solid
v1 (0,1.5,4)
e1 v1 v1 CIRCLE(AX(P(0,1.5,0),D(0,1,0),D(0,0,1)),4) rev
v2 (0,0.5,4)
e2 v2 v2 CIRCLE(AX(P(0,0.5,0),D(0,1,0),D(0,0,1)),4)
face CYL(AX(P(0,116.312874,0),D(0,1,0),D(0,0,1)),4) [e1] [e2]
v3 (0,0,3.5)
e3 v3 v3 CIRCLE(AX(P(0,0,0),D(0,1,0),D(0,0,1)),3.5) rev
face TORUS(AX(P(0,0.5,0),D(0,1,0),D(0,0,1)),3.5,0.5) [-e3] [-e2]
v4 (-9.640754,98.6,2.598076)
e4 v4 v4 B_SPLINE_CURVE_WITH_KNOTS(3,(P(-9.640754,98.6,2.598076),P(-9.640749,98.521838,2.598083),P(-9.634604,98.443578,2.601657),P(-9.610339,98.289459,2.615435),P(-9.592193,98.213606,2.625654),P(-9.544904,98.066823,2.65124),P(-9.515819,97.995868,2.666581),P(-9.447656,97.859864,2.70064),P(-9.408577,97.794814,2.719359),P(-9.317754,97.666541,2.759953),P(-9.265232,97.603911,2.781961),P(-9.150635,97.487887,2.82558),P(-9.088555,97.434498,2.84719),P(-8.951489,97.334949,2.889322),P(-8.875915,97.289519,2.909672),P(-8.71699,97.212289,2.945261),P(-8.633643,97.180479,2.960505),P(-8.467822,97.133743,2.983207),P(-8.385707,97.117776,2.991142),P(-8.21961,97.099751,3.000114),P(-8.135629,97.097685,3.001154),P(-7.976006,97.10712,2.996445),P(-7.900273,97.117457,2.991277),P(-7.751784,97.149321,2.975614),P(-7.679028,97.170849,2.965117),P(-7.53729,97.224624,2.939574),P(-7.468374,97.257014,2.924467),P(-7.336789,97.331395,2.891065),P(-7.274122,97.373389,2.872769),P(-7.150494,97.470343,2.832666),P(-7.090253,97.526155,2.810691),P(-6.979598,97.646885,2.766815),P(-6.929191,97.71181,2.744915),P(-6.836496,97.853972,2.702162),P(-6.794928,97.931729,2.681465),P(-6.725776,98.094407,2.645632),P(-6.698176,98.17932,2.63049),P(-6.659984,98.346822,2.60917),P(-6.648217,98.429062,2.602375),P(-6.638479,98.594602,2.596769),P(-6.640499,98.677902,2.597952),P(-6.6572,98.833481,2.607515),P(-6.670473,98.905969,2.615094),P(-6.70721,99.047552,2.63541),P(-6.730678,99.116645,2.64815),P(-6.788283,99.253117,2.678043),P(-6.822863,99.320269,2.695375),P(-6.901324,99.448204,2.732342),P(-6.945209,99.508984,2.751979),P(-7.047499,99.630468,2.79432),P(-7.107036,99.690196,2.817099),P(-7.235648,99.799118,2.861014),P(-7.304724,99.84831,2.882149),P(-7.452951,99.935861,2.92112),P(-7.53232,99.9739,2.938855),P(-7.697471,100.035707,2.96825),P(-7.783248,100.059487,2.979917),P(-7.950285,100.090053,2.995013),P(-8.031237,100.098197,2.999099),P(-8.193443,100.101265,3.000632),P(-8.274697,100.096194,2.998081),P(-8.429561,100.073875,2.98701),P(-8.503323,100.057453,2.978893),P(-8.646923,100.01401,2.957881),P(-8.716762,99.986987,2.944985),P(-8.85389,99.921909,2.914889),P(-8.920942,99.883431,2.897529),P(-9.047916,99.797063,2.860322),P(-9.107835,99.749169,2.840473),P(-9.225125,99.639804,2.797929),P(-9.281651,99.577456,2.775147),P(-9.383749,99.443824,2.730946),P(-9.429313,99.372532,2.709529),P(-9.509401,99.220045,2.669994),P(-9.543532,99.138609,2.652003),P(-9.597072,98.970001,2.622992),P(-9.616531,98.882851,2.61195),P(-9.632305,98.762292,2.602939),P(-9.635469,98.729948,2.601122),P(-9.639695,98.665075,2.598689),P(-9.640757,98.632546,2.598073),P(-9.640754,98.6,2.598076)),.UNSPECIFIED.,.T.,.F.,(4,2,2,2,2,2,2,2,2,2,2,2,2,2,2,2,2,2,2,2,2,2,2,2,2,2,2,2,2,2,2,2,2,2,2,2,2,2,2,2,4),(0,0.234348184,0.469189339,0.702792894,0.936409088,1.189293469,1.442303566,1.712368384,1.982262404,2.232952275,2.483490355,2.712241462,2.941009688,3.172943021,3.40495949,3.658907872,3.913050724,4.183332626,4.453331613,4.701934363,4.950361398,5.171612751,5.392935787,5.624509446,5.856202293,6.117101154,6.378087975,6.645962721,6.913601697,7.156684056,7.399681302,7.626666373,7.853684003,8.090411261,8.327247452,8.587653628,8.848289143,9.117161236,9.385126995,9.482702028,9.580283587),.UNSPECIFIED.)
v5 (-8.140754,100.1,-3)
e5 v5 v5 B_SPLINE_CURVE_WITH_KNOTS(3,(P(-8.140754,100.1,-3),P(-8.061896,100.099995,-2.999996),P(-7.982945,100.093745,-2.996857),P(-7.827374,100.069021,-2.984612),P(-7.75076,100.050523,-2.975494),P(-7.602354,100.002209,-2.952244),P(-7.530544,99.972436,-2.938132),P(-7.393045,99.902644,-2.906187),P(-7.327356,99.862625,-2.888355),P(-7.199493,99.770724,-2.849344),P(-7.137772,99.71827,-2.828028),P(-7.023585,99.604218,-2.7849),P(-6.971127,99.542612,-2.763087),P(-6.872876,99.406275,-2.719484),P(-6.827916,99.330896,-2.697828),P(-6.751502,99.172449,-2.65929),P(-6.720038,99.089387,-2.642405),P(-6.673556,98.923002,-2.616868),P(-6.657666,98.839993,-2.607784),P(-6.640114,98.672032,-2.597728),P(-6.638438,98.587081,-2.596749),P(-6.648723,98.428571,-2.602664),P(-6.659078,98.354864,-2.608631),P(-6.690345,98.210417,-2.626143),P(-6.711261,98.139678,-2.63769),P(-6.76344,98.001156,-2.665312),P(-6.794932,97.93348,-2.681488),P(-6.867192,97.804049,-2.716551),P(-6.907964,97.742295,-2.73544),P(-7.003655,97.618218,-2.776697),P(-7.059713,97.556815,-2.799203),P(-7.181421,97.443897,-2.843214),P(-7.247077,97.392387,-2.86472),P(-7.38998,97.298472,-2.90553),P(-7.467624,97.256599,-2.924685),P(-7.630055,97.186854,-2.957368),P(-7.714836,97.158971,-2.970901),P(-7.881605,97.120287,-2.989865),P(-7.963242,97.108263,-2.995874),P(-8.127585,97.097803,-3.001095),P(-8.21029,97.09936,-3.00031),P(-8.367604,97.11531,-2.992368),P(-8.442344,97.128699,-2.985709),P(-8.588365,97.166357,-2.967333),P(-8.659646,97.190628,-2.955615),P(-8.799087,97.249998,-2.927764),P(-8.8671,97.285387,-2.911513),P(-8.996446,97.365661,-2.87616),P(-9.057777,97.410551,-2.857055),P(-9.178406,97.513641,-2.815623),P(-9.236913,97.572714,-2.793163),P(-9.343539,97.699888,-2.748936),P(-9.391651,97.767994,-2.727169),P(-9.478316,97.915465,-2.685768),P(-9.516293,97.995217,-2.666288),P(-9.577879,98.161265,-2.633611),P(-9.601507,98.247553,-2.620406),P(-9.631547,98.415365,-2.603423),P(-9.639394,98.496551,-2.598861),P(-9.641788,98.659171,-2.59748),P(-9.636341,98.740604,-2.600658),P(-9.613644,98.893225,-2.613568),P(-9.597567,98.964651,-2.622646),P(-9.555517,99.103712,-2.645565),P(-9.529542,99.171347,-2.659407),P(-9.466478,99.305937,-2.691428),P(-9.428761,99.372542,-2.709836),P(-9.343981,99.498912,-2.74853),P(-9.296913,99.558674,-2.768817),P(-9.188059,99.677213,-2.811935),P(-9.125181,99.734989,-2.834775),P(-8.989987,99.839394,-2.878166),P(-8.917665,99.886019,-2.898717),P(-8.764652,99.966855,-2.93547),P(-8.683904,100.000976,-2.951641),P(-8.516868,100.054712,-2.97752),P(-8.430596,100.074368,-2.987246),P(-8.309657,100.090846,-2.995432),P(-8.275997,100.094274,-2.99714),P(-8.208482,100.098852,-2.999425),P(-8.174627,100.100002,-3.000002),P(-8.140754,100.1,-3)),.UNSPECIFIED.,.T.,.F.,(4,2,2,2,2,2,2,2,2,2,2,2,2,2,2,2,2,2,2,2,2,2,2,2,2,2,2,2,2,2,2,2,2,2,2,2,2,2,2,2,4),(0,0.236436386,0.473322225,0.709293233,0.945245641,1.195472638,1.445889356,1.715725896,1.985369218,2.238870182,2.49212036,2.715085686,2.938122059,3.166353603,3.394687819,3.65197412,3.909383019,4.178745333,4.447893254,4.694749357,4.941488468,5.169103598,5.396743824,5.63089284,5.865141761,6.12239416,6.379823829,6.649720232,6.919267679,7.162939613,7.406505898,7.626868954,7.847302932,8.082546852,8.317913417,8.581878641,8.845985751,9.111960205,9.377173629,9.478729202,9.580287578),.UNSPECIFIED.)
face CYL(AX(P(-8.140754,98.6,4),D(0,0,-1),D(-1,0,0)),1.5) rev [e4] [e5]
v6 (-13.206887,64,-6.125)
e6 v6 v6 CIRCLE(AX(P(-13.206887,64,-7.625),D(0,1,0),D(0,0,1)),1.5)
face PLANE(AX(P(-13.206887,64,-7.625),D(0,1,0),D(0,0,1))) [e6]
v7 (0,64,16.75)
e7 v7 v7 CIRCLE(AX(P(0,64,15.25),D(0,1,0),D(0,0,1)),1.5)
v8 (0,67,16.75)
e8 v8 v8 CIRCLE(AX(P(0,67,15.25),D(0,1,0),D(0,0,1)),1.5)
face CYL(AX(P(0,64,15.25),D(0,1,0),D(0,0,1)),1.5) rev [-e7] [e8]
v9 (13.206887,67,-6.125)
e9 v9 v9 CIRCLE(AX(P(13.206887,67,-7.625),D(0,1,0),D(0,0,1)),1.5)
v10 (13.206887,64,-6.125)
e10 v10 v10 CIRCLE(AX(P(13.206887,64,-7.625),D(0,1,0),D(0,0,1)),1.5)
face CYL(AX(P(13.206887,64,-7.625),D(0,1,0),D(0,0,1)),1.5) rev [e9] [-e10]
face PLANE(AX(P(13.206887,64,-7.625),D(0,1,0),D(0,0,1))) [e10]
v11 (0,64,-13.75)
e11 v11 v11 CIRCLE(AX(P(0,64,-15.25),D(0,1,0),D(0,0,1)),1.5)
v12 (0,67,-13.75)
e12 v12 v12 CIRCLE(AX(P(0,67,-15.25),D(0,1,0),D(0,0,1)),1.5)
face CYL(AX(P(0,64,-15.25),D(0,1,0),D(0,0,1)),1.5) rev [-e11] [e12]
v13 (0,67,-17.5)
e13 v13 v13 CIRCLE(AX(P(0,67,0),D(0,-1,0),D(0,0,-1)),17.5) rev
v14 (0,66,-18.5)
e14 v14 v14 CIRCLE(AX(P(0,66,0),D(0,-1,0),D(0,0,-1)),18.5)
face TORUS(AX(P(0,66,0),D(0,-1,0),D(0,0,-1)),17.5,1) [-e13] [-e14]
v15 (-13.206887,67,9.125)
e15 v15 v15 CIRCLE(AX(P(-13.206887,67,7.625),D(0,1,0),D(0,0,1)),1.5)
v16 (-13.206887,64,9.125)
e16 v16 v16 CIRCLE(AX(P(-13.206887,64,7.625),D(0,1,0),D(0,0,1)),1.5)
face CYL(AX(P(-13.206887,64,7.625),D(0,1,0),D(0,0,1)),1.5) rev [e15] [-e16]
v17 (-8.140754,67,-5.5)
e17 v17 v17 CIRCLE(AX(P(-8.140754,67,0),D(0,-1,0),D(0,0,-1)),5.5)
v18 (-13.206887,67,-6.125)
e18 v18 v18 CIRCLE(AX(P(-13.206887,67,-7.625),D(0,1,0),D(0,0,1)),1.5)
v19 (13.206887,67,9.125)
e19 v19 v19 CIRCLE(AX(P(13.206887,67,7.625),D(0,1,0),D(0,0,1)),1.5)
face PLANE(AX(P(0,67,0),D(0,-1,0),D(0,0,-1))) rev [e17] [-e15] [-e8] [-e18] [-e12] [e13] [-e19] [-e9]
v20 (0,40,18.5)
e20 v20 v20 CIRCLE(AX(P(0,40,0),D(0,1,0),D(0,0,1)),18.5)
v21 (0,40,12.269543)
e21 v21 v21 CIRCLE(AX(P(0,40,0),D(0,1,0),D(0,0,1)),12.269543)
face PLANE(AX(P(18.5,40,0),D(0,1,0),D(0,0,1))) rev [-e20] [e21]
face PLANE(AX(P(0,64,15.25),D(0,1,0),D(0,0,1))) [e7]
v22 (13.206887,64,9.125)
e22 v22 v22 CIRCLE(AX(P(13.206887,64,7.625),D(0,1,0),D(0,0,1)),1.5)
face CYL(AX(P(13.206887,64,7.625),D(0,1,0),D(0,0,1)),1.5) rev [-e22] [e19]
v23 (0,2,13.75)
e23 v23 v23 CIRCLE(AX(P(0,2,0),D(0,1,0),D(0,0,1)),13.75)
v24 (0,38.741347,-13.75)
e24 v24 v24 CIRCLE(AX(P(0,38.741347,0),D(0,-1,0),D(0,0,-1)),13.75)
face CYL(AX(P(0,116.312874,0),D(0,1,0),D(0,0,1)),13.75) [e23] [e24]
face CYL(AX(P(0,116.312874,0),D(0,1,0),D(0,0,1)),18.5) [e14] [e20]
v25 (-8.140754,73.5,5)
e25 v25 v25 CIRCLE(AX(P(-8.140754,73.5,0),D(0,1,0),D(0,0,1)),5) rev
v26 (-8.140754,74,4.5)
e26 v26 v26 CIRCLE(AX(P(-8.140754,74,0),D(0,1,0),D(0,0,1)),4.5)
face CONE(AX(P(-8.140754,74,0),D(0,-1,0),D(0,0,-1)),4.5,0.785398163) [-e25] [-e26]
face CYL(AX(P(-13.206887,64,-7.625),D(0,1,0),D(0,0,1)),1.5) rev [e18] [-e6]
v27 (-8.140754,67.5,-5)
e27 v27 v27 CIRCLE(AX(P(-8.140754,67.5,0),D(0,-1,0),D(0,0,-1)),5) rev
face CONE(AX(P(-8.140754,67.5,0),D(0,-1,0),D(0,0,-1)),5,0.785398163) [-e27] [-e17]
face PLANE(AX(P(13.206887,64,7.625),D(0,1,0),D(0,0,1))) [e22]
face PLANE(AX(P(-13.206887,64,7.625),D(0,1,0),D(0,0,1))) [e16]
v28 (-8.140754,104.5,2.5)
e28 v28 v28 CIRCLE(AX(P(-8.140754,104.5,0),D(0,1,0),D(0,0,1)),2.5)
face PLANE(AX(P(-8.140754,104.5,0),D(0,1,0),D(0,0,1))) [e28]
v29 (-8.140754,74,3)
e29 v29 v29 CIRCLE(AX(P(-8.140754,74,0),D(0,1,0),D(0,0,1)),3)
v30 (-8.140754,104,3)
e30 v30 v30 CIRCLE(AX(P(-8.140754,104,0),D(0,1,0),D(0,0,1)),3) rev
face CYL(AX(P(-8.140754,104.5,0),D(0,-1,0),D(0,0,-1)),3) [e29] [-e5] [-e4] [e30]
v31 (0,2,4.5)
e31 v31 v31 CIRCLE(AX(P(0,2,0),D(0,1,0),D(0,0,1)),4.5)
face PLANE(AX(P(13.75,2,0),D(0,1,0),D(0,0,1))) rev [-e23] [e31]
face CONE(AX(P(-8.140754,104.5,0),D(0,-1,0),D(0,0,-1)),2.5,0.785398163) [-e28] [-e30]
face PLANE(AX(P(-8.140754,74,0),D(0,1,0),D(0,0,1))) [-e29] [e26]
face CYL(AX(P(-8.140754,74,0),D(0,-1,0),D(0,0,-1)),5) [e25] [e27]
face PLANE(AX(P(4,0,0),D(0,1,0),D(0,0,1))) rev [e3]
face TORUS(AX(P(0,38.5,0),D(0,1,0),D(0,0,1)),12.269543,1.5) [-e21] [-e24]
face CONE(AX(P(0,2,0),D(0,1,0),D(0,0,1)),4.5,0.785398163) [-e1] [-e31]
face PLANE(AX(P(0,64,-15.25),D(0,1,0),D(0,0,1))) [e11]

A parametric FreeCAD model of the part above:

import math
import FreeCAD as App
import Part
import Sketcher
Q = App.Units.Quantity


def edges_at(feature, points):
    """Names of the edges that pass closest to the given points."""
    edges = feature.Shape.Edges
    near = lambda p: min(range(len(edges)), key=lambda i: edges[i].distToShape(Part.Vertex(*p))[0])
    return sorted({f"Edge{near(p) + 1}" for p in points})

doc = App.newDocument("Part")
body = doc.addObject("PartDesign::Body", "Body")

sketch1 = doc.addObject("Sketcher::SketchObject", "Sketch")
body.addObject(sketch1)
sketch1.AttachmentSupport = (doc.XY_Plane, [""])
sketch1.MapMode = "FlatFace"
sketch1.addGeometry([
    Part.LineSegment(App.Vector(18.5, 67, 0), App.Vector(0, 67, 0)),
    Part.LineSegment(App.Vector(0, 67, 0), App.Vector(0, 0, 0)),
    Part.LineSegment(App.Vector(0, 0, 0), App.Vector(4, 0, 0)),
    Part.LineSegment(App.Vector(4, 0, 0), App.Vector(4, 2, 0)),
    Part.LineSegment(App.Vector(4, 2, 0), App.Vector(13.75, 2, 0)),
    Part.LineSegment(App.Vector(13.75, 2, 0), App.Vector(13.75, 40, 0)),
    Part.LineSegment(App.Vector(13.75, 40, 0), App.Vector(18.5, 40, 0)),
    Part.LineSegment(App.Vector(18.5, 40, 0), App.Vector(18.5, 67, 0)),
], False)
sketch1.addConstraint([
    Sketcher.Constraint("Coincident", 0, 2, 1, 1),
    Sketcher.Constraint("Coincident", 1, 2, 2, 1),
    Sketcher.Constraint("Coincident", 2, 2, 3, 1),
    Sketcher.Constraint("Coincident", 3, 2, 4, 1),
    Sketcher.Constraint("Coincident", 4, 2, 5, 1),
    Sketcher.Constraint("Coincident", 5, 2, 6, 1),
    Sketcher.Constraint("Coincident", 6, 2, 7, 1),
    Sketcher.Constraint("Coincident", 7, 2, 0, 1),
    Sketcher.Constraint("Horizontal", 0),
    Sketcher.Constraint("Vertical", 1),
    Sketcher.Constraint("Horizontal", 2),
    Sketcher.Constraint("Vertical", 3),
    Sketcher.Constraint("Horizontal", 4),
    Sketcher.Constraint("Vertical", 5),
    Sketcher.Constraint("Horizontal", 6),
    Sketcher.Constraint("Vertical", 7),
    Sketcher.Constraint("Coincident", 1, 2, -1, 1),
    Sketcher.Constraint("DistanceX", 2, 1, 2, 2, Q("4 mm")),
    Sketcher.Constraint("DistanceY", 1, 2, 1, 1, Q("67 mm")),
    Sketcher.Constraint("DistanceY", 3, 1, 3, 2, Q("2 mm")),
    Sketcher.Constraint("DistanceY", 5, 1, 5, 2, Q("38 mm")),
    Sketcher.Constraint("DistanceX", 0, 2, 0, 1, Q("18.5 mm")),
    Sketcher.Constraint("DistanceX", 4, 1, 4, 2, Q("9.75 mm")),
])
revolution = doc.addObject("PartDesign::Revolution", "Revolution")
body.addObject(revolution)
revolution.Profile = sketch1
revolution.ReferenceAxis = (sketch1, ["V_Axis"])
revolution.Angle = 360

sketch2 = doc.addObject("Sketcher::SketchObject", "Sketch001")
body.addObject(sketch2)
sketch2.AttachmentSupport = (doc.XZ_Plane, [""])
sketch2.MapMode = "FlatFace"
sketch2.AttachmentOffset = App.Placement(App.Vector(0, 0, -67), App.Rotation())
sketch2.addGeometry(Part.Circle(App.Vector(-8.140754, 0, 0), App.Vector(0, 0, 1), 5), False)
sketch2.addConstraint([
    Sketcher.Constraint("PointOnObject", 0, 3, -1),
    Sketcher.Constraint("Diameter", 0, Q("10 mm")),
    Sketcher.Constraint("DistanceX", 0, 3, -1, 1, Q("8.140754 mm")),
])
pad1 = doc.addObject("PartDesign::Pad", "Pad")
body.addObject(pad1)
pad1.Profile = sketch2
pad1.Length = 7
pad1.Reversed = True

sketch3 = doc.addObject("Sketcher::SketchObject", "Sketch002")
body.addObject(sketch3)
sketch3.AttachmentSupport = (doc.XZ_Plane, [""])
sketch3.MapMode = "FlatFace"
sketch3.AttachmentOffset = App.Placement(App.Vector(0, 0, -74), App.Rotation())
sketch3.addGeometry(Part.Circle(App.Vector(-8.140754, 0, 0), App.Vector(0, 0, 1), 3), False)
sketch3.addConstraint([
    Sketcher.Constraint("PointOnObject", 0, 3, -1),
    Sketcher.Constraint("Diameter", 0, Q("6 mm")),
    Sketcher.Constraint("DistanceX", 0, 3, -1, 1, Q("8.140754 mm")),
])
pad2 = doc.addObject("PartDesign::Pad", "Pad001")
body.addObject(pad2)
pad2.Profile = sketch3
pad2.Length = 30.5
pad2.Reversed = True

sketch4 = doc.addObject("Sketcher::SketchObject", "Sketch003")
body.addObject(sketch4)
sketch4.AttachmentSupport = (doc.XZ_Plane, [""])
sketch4.MapMode = "FlatFace"
sketch4.AttachmentOffset = App.Placement(App.Vector(0, 0, -67), App.Rotation())
sketch4.addGeometry([
    Part.Circle(App.Vector(0, -15.25, 0), App.Vector(0, 0, 1), 1.5),
    Part.Circle(App.Vector(13.206887, -7.625, 0), App.Vector(0, 0, 1), 1.5),
    Part.Circle(App.Vector(13.206887, 7.625, 0), App.Vector(0, 0, 1), 1.5),
    Part.Circle(App.Vector(0, 15.25, 0), App.Vector(0, 0, 1), 1.5),
    Part.Circle(App.Vector(-13.206887, 7.625, 0), App.Vector(0, 0, 1), 1.5),
    Part.Circle(App.Vector(-13.206887, -7.625, 0), App.Vector(0, 0, 1), 1.5),
], False)
sketch4.addConstraint([
    Sketcher.Constraint("Equal", 0, 1),
    Sketcher.Constraint("Equal", 1, 2),
    Sketcher.Constraint("Equal", 2, 3),
    Sketcher.Constraint("Equal", 3, 4),
    Sketcher.Constraint("Equal", 4, 5),
    Sketcher.Constraint("Symmetric", 0, 3, 3, 3, -1, 1),
    Sketcher.Constraint("Symmetric", 1, 3, 4, 3, -1, 1),
    Sketcher.Constraint("Symmetric", 2, 3, 5, 3, -1, 1),
    Sketcher.Constraint("Symmetric", 2, 3, 4, 3, -2),
    Sketcher.Constraint("PointOnObject", 0, 3, -2),
    Sketcher.Constraint("Diameter", 0, Q("3 mm")),
    Sketcher.Constraint("DistanceY", 0, 3, 3, 3, Q("30.5 mm")),
    Sketcher.Constraint("DistanceY", 1, 3, 2, 3, Q("15.25 mm")),
    Sketcher.Constraint("DistanceX", -1, 1, 1, 3, Q("13.206887 mm")),
])
pocket1 = doc.addObject("PartDesign::Pocket", "Pocket")
body.addObject(pocket1)
pocket1.Profile = sketch4
pocket1.Length = 3
pocket1.Reversed = True

sketch5 = doc.addObject("Sketcher::SketchObject", "Sketch004")
body.addObject(sketch5)
sketch5.AttachmentSupport = (doc.XY_Plane, [""])
sketch5.MapMode = "FlatFace"
sketch5.addGeometry(Part.Circle(App.Vector(-8.140754, 98.6, 0), App.Vector(0, 0, 1), 1.5), False)
sketch5.addConstraint([
    Sketcher.Constraint("Diameter", 0, Q("3 mm")),
    Sketcher.Constraint("DistanceY", -1, 1, 0, 3, Q("98.6 mm")),
    Sketcher.Constraint("DistanceX", 0, 3, -1, 1, Q("8.140754 mm")),
])
pocket2 = doc.addObject("PartDesign::Pocket", "Pocket001")
body.addObject(pocket2)
pocket2.Profile = sketch5
pocket2.Type = "ThroughAll"
pocket2.Midplane = True
doc.recompute()

chamfer = doc.addObject("PartDesign::Chamfer", "Chamfer")
body.addObject(chamfer)
chamfer.Base = (pocket2, edges_at(pocket2, [(-8.141, 67, 5), (-8.141, 74, 5)]))
chamfer.Size = 0.5
doc.recompute()

fillet = doc.addObject("PartDesign::Fillet", "Fillet")
body.addObject(fillet)
fillet.Base = (chamfer, edges_at(chamfer, [(0, 0, -4)]))
fillet.Radius = 0.5
doc.recompute()

chamfer2 = doc.addObject("PartDesign::Chamfer", "Chamfer001")
body.addObject(chamfer2)
chamfer2.Base = (fillet, edges_at(fillet, [(0, 2, -4)]))
chamfer2.Size = 0.5
doc.recompute()

chamfer3 = doc.addObject("PartDesign::Chamfer", "Chamfer002")
body.addObject(chamfer3)
chamfer3.Base = (chamfer2, edges_at(chamfer2, [(-8.141, 104.5, 3)]))
chamfer3.Size = 0.5
doc.recompute()

fillet2 = doc.addObject("PartDesign::Fillet", "Fillet001")
body.addObject(fillet2)
fillet2.Base = (chamfer3, edges_at(chamfer3, [(0, 67, -18.5)]))
fillet2.Radius = 1

sketch6 = doc.addObject("Sketcher::SketchObject", "Sketch005")
body.addObject(sketch6)
sketch6.AttachmentSupport = (doc.XY_Plane, [""])
sketch6.MapMode = "FlatFace"
sketch6.addGeometry([
    Part.LineSegment(App.Vector(13.769543, 40, 0), App.Vector(12.269543, 40, 0)),
    Part.ArcOfCircle(Part.Circle(App.Vector(12.269543, 38.5, 0), App.Vector(0, 0, 1), 1.5), math.radians(0), math.radians(90)),
    Part.LineSegment(App.Vector(13.769543, 38.5, 0), App.Vector(13.769543, 40, 0)),
], False)
sketch6.addConstraint([
    Sketcher.Constraint("Tangent", 0, 2, 1, 2),
    Sketcher.Constraint("Tangent", 1, 1, 2, 1),
    Sketcher.Constraint("Coincident", 2, 2, 0, 1),
    Sketcher.Constraint("Horizontal", 0),
    Sketcher.Constraint("Vertical", 2),
    Sketcher.Constraint("Radius", 1, Q("1.5 mm")),
    Sketcher.Constraint("DistanceY", -1, 1, 0, 2, Q("40 mm")),
    Sketcher.Constraint("DistanceX", -1, 1, 1, 3, Q("12.269543 mm")),
])
groove = doc.addObject("PartDesign::Groove", "Groove")
body.addObject(groove)
groove.Profile = sketch6
groove.ReferenceAxis = (sketch6, ["V_Axis"])
groove.Angle = 360

doc.recompute()
